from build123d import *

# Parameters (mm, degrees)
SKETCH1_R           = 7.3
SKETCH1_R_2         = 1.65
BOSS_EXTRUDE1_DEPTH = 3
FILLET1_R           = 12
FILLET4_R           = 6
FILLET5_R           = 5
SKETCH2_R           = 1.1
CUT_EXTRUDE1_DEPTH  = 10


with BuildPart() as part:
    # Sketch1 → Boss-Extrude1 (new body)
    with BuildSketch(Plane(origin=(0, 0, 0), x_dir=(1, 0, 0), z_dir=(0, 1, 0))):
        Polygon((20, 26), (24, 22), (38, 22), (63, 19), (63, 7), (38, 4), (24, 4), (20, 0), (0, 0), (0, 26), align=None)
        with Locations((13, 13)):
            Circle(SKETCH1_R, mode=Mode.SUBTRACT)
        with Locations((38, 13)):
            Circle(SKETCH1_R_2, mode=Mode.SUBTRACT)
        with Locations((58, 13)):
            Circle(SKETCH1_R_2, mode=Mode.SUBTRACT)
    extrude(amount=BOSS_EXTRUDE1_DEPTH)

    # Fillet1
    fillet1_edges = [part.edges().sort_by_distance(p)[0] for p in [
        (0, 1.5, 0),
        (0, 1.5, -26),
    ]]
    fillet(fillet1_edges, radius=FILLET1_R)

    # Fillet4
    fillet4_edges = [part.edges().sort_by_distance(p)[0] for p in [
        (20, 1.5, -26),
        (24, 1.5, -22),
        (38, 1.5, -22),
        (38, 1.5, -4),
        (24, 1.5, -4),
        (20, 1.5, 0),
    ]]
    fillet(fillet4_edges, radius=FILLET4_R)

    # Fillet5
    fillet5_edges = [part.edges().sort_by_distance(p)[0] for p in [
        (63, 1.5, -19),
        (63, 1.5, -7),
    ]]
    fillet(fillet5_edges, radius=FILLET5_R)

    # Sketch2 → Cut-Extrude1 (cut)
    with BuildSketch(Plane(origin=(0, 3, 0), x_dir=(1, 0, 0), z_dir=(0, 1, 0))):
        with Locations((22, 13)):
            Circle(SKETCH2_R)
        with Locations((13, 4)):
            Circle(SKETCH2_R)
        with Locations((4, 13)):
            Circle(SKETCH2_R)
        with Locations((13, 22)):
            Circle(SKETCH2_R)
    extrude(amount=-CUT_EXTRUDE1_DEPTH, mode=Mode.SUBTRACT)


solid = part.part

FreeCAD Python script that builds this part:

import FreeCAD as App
import Part
import Sketcher
Q = App.Units.Quantity


def edges_at(feature, points):
    """Names of the edges that pass closest to the given points."""
    edges = feature.Shape.Edges
    near = lambda p: min(range(len(edges)), key=lambda i: edges[i].distToShape(Part.Vertex(*p))[0])
    return sorted({f"Edge{near(p) + 1}" for p in points})


def add_polygon(sketch, points):
    """Adds a closed chain of lines whose ends are joined by coincident constraints."""
    first, n = sketch.GeometryCount, len(points)
    for a, b in zip(points, points[1:] + points[:1]):
        sketch.addGeometry(Part.LineSegment(App.Vector(*a, 0), App.Vector(*b, 0)), False)
    for i in range(n):
        sketch.addConstraint(Sketcher.Constraint("Coincident", first + i, 2, first + (i + 1) % n, 1))

doc = App.newDocument("Part")
body = doc.addObject("PartDesign::Body", "Body")

# Sketch on XZ plane
sketch1 = body.newObject("Sketcher::SketchObject", "Sketch")
sketch1.AttachmentSupport = (doc.getObject("XZ_Plane"), [""])
sketch1.MapMode = "FlatFace"
add_polygon(sketch1, [(24, -22), (20, -26), (0, -26), (0, 0), (20, 0), (24, -4), (38, -4), (63, -7), (63, -19), (38, -22)])  # lines 0-9
sketch1.addGeometry(Part.Circle(App.Vector(58, -13, 0), App.Vector(0, 0, 1), 1.6), False)  # 10
sketch1.addGeometry(Part.Circle(App.Vector(38, -13, 0), App.Vector(0, 0, 1), 1.6), False)  # 11
sketch1.addGeometry(Part.Circle(App.Vector(13, -13, 0), App.Vector(0, 0, 1), 7.3), False)  # 12
sketch1.addConstraint(Sketcher.Constraint("Horizontal", 1))
sketch1.addConstraint(Sketcher.Constraint("Vertical", 2))
sketch1.addConstraint(Sketcher.Constraint("Horizontal", 3))
sketch1.addConstraint(Sketcher.Constraint("Horizontal", 5))
sketch1.addConstraint(Sketcher.Constraint("Vertical", 7))
sketch1.addConstraint(Sketcher.Constraint("Horizontal", 9))
sketch1.addConstraint(Sketcher.Constraint("Coincident", 2, 2, -1, 1))
sketch1.addConstraint(Sketcher.Constraint("Equal", 10, 11))
sketch1.addConstraint(Sketcher.Constraint("Perpendicular", 0, 4))
sketch1.addConstraint(Sketcher.Constraint("Horizontal", 10, 3, 11, 3))
sketch1.addConstraint(Sketcher.Constraint("Horizontal", 11, 3, 12, 3))
sketch1.addConstraint(Sketcher.Constraint("Vertical", 0, 2, 3, 2))
sketch1.addConstraint(Sketcher.Constraint("Vertical", 11, 3, 5, 2))
sketch1.addConstraint(Sketcher.Constraint("Vertical", 5, 2, 8, 2))
sketch1.addConstraint(Sketcher.Constraint("Vertical", 4, 2, 9, 2))
sketch1.addConstraint(Sketcher.Constraint("Equal", 0, 4))
sketch1.addConstraint(Sketcher.Constraint("Equal", 6, 8))
sketch1.addConstraint(Sketcher.Constraint("Diameter", 10, Q("3.3 mm")))
sketch1.addConstraint(Sketcher.Constraint("Diameter", 12, Q("14.6 mm")))
sketch1.addConstraint(Sketcher.Constraint("DistanceX", 1, 2, 1, 1, Q("20 mm")))
sketch1.addConstraint(Sketcher.Constraint("DistanceX", 5, 1, 5, 2, Q("14 mm")))
sketch1.addConstraint(Sketcher.Constraint("DistanceY", 2, 1, 2, 2, Q("26 mm")))
sketch1.addConstraint(Sketcher.Constraint("DistanceY", 7, 2, 7, 1, Q("12 mm")))
sketch1.addConstraint(Sketcher.Constraint("DistanceX", -1, 1, 10, 3, Q("58 mm")))
sketch1.addConstraint(Sketcher.Constraint("DistanceY", 10, 3, -1, 1, Q("13 mm")))
sketch1.addConstraint(Sketcher.Constraint("DistanceX", -1, 1, 11, 3, Q("38 mm")))
sketch1.addConstraint(Sketcher.Constraint("DistanceX", -1, 1, 12, 3, Q("13 mm")))
sketch1.addConstraint(Sketcher.Constraint("DistanceX", -1, 1, 6, 2, Q("63 mm")))
pad1 = body.newObject("PartDesign::Pad", "Pad")
pad1.Profile = sketch1
pad1.Length = 3
pad1.Reversed = True
doc.recompute()

fillet = body.newObject("PartDesign::Fillet", "Fillet")
fillet.Base = (pad1, edges_at(pad1, [(0, 1.5, 0), (0, 1.5, -26)]))
fillet.Radius = 12
doc.recompute()

fillet2 = body.newObject("PartDesign::Fillet", "Fillet001")
fillet2.Base = (fillet, edges_at(fillet, [
    (20, 1.5, -26),
    (24, 1.5, -22),
    (38, 1.5, -22),
    (38, 1.5, -4),
    (24, 1.5, -4),
    (20, 1.5, 0),
]))
fillet2.Radius = 6
doc.recompute()

fillet3 = body.newObject("PartDesign::Fillet", "Fillet002")
fillet3.Base = (fillet2, edges_at(fillet2, [(63, 1.5, -19), (63, 1.5, -7)]))
fillet3.Radius = 5

# Sketch on XZ plane
sketch2 = body.newObject("Sketcher::SketchObject", "Sketch001")
sketch2.AttachmentSupport = (doc.getObject("XZ_Plane"), [""])
sketch2.MapMode = "FlatFace"
sketch2.AttachmentOffset = App.Placement(App.Vector(0, 0, -3), App.Rotation())
sketch2.addGeometry(Part.Circle(App.Vector(22, -13, 0), App.Vector(0, 0, 1), 1.1), False)
sketch2.addGeometry(Part.Circle(App.Vector(13, -4, 0), App.Vector(0, 0, 1), 1.1), False)
sketch2.addGeometry(Part.Circle(App.Vector(4, -13, 0), App.Vector(0, 0, 1), 1.1), False)
sketch2.addGeometry(Part.Circle(App.Vector(13, -22, 0), App.Vector(0, 0, 1), 1.1), False)
sketch2.addConstraint(Sketcher.Constraint("Equal", 0, 1))
sketch2.addConstraint(Sketcher.Constraint("Equal", 1, 2))
sketch2.addConstraint(Sketcher.Constraint("Equal", 2, 3))
sketch2.addConstraint(Sketcher.Constraint("Horizontal", 0, 3, 2, 3))
sketch2.addConstraint(Sketcher.Constraint("Vertical", 1, 3, 3, 3))
sketch2.addConstraint(Sketcher.Constraint("Diameter", 0, Q("2.2 mm")))
sketch2.addConstraint(Sketcher.Constraint("DistanceX", -1, 1, 0, 3, Q("22 mm")))
sketch2.addConstraint(Sketcher.Constraint("DistanceY", 0, 3, -1, 1, Q("13 mm")))
sketch2.addConstraint(Sketcher.Constraint("DistanceX", -1, 1, 1, 3, Q("13 mm")))
sketch2.addConstraint(Sketcher.Constraint("DistanceY", 1, 3, -1, 1, Q("4 mm")))
sketch2.addConstraint(Sketcher.Constraint("DistanceX", -1, 1, 2, 3, Q("4 mm")))
sketch2.addConstraint(Sketcher.Constraint("DistanceY", 3, 3, -1, 1, Q("22 mm")))
pocket1 = body.newObject("PartDesign::Pocket", "Pocket")
pocket1.Profile = sketch2
pocket1.Length = 10
pocket1.Reversed = True

doc.recompute()
